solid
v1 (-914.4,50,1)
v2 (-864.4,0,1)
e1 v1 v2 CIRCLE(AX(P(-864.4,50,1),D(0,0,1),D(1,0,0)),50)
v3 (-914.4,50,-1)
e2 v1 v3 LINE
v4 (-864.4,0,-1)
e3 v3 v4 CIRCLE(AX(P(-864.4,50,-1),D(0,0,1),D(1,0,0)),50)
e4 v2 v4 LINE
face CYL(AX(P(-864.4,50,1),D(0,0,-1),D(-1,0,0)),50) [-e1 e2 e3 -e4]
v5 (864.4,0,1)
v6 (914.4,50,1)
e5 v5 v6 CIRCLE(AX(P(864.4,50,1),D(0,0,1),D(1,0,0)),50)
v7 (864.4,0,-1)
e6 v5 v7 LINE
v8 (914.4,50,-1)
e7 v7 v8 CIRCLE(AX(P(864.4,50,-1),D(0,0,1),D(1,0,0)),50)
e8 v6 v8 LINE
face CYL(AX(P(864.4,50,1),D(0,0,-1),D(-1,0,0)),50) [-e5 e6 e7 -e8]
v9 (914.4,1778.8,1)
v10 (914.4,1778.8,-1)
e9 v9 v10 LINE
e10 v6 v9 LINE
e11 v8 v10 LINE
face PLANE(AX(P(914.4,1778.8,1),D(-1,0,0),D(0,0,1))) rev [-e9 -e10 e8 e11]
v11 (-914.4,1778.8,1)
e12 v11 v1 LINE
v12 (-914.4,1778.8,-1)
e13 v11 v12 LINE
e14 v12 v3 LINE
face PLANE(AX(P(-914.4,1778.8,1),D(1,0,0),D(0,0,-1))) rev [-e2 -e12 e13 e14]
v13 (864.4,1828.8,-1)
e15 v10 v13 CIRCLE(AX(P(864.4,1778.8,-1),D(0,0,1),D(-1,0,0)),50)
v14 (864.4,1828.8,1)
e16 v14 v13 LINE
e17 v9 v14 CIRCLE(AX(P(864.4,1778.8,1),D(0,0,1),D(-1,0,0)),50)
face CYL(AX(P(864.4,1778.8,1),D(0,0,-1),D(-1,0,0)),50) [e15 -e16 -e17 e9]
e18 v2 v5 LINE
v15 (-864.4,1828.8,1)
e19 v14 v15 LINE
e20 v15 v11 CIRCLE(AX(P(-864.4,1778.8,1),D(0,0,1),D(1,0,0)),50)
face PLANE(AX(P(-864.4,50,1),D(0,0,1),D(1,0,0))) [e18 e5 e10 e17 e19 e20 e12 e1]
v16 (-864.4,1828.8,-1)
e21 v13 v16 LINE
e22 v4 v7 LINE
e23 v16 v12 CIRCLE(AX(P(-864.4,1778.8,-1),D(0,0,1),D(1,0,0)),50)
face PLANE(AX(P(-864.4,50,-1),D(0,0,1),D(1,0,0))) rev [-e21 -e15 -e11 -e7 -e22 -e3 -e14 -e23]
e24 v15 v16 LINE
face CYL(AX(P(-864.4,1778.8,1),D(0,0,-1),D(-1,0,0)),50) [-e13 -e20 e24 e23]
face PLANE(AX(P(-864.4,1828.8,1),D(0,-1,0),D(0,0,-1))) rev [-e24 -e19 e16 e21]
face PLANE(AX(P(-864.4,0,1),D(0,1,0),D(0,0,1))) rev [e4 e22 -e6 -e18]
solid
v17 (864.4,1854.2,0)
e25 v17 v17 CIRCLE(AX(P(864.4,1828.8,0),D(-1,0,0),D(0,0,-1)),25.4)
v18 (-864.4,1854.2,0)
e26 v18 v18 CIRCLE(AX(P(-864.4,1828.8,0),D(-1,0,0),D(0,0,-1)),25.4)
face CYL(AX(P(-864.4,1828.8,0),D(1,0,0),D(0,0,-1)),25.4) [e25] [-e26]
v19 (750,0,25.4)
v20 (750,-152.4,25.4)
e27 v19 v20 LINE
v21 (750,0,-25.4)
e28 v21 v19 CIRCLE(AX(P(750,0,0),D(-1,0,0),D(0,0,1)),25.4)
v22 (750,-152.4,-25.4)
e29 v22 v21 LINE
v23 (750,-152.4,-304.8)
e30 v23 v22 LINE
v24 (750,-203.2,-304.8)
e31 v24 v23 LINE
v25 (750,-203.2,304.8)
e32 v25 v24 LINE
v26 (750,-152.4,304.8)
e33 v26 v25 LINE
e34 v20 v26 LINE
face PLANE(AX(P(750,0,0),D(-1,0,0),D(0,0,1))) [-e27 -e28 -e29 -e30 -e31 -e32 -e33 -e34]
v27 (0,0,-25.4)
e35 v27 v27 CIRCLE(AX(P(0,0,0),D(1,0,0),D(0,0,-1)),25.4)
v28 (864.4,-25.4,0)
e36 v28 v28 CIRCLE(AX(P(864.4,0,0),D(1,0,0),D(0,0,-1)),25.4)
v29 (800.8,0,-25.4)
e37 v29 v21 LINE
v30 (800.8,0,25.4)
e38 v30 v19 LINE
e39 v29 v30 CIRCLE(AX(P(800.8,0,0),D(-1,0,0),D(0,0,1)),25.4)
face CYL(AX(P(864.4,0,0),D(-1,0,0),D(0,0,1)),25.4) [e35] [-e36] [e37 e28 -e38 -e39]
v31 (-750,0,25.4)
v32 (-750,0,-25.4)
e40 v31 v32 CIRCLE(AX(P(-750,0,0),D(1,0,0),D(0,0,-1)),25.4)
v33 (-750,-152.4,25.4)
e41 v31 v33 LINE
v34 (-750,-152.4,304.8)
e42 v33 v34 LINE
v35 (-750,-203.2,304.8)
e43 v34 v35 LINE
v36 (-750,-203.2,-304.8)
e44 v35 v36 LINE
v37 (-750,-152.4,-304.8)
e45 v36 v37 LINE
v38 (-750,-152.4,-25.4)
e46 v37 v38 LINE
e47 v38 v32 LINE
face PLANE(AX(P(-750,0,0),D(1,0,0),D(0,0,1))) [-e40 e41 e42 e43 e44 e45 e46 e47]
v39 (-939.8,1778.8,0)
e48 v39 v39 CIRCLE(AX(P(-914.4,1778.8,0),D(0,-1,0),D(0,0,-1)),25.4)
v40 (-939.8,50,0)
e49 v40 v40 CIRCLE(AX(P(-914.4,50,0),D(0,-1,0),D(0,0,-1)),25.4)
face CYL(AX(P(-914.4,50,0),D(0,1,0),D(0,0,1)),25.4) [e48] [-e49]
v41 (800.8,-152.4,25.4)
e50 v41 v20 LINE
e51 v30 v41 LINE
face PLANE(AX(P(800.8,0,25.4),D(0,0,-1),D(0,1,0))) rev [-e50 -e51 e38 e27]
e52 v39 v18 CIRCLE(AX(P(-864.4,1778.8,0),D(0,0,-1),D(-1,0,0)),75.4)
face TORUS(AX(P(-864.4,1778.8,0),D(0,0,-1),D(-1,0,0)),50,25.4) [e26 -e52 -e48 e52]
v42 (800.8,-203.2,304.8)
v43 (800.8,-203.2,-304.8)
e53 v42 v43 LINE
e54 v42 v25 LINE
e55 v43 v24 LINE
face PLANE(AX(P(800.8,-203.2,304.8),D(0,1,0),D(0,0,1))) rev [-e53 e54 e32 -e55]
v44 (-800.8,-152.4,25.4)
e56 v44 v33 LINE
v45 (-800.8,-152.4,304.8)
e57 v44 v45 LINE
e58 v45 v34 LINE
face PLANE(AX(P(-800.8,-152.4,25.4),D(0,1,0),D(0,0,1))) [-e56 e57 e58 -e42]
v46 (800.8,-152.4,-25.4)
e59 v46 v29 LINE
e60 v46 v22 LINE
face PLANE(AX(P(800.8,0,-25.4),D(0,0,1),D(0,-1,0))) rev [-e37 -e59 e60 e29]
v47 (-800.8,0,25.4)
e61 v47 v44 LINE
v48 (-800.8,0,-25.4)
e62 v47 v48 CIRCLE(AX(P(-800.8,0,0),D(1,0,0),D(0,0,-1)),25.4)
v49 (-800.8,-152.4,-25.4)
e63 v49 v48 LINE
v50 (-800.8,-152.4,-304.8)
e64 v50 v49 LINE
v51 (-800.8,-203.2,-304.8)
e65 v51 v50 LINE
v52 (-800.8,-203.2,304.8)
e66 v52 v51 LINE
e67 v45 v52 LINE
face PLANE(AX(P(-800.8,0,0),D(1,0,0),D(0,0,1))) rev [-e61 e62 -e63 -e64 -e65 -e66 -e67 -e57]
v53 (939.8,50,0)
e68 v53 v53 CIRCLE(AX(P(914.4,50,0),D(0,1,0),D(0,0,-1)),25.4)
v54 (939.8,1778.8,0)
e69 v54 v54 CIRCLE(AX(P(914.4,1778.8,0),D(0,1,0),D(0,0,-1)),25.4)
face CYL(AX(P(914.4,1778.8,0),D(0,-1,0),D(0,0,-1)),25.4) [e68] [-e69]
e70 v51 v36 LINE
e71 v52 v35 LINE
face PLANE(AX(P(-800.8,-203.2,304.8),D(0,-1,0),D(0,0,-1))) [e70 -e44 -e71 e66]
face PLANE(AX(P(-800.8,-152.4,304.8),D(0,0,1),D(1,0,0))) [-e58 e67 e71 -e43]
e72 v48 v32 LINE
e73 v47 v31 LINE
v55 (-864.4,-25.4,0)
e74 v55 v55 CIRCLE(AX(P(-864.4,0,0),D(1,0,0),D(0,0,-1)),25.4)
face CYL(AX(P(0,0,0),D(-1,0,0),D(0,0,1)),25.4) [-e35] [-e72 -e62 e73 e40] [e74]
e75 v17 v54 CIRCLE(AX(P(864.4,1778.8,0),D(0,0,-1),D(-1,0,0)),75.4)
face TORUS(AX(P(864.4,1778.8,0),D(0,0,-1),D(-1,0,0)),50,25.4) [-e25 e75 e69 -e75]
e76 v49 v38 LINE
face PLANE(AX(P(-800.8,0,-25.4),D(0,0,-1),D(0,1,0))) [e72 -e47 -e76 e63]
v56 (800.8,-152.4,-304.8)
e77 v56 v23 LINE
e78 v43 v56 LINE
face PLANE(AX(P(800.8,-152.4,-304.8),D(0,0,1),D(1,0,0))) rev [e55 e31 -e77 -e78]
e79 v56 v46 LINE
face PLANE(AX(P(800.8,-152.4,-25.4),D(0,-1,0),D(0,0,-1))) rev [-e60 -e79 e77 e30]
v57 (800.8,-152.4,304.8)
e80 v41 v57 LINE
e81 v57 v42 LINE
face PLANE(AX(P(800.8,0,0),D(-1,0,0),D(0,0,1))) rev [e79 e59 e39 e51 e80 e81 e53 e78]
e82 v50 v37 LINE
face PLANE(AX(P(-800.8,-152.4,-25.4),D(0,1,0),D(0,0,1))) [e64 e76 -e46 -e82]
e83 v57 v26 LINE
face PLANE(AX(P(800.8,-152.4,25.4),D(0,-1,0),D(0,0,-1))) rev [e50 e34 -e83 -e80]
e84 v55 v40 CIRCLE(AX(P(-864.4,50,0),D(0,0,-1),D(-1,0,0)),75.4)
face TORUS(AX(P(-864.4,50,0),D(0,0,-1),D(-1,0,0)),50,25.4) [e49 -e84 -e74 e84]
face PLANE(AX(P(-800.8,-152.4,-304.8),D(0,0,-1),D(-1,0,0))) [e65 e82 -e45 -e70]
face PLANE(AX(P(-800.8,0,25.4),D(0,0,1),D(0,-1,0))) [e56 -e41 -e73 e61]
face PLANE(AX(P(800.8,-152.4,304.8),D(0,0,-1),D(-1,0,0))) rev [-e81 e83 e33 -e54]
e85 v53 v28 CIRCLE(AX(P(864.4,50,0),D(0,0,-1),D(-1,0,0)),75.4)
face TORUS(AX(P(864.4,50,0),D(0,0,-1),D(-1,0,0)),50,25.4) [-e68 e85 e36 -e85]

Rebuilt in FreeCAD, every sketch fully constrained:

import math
import FreeCAD as App
import Part
import Sketcher

V = App.Vector
Q = App.Units.Quantity


def add_polygon(sketch, points):
    """Adds a closed chain of lines whose ends are joined by coincident constraints."""
    first, n = sketch.GeometryCount, len(points)
    for a, b in zip(points, points[1:] + points[:1]):
        sketch.addGeometry(Part.LineSegment(App.Vector(*a, 0), App.Vector(*b, 0)), False)
    for i in range(n):
        sketch.addConstraint(Sketcher.Constraint("Coincident", first + i, 2, first + (i + 1) % n, 1))

doc = App.newDocument("Part")
body = doc.addObject("PartDesign::Body", "Body")

sketch1 = doc.addObject("Sketcher::SketchObject", "Sketch")
body.addObject(sketch1)
sketch1.AttachmentSupport = (doc.YZ_Plane, [""])
sketch1.MapMode = "FlatFace"
sketch1.addGeometry(Part.Circle(V(0, 0, 0), V(0, 0, 1), 25), False)
sketch1.addConstraint(Sketcher.Constraint("Coincident", 0, 3, -1, 1))
sketch1.addConstraint(Sketcher.Constraint("Diameter", 0, Q("2 in")))

sketch2 = doc.addObject("Sketcher::SketchObject", "Sketch001")
body.addObject(sketch2)
sketch2.AttachmentSupport = (doc.XY_Plane, [""])
sketch2.MapMode = "FlatFace"
sketch2.addGeometry(Part.LineSegment(V(-864, 1829, 0), V(864, 1829, 0)), False)
sketch2.addGeometry(Part.ArcOfCircle(Part.Circle(V(864, 1779, 0), V(0, 0, 1), 50), math.radians(0), math.radians(90)), False)
sketch2.addGeometry(Part.LineSegment(V(914, 1779, 0), V(914, 50, 0)), False)
sketch2.addGeometry(Part.ArcOfCircle(Part.Circle(V(864, 50, 0), V(0, 0, 1), 50), math.radians(-90), math.radians(0)), False)
sketch2.addGeometry(Part.LineSegment(V(864, 0, 0), V(-864, 0, 0)), False)
sketch2.addGeometry(Part.ArcOfCircle(Part.Circle(V(-864, 50, 0), V(0, 0, 1), 50), math.radians(-180), math.radians(-90)), False)
sketch2.addGeometry(Part.LineSegment(V(-914, 50, 0), V(-914, 1779, 0)), False)
sketch2.addGeometry(Part.ArcOfCircle(Part.Circle(V(-864, 1779, 0), V(0, 0, 1), 50), math.radians(90), math.radians(180)), False)
sketch2.addConstraint(Sketcher.Constraint("Tangent", 0, 2, 1, 2))
sketch2.addConstraint(Sketcher.Constraint("Tangent", 1, 1, 2, 1))
sketch2.addConstraint(Sketcher.Constraint("Tangent", 2, 2, 3, 2))
sketch2.addConstraint(Sketcher.Constraint("Tangent", 3, 1, 4, 1))
sketch2.addConstraint(Sketcher.Constraint("Tangent", 4, 2, 5, 2))
sketch2.addConstraint(Sketcher.Constraint("Tangent", 5, 1, 6, 1))
sketch2.addConstraint(Sketcher.Constraint("Tangent", 6, 2, 7, 2))
sketch2.addConstraint(Sketcher.Constraint("Tangent", 7, 1, 0, 1))
sketch2.addConstraint(Sketcher.Constraint("Horizontal", 0))
sketch2.addConstraint(Sketcher.Constraint("Vertical", 2))
sketch2.addConstraint(Sketcher.Constraint("Horizontal", 4))
sketch2.addConstraint(Sketcher.Constraint("Vertical", 6))
sketch2.addConstraint(Sketcher.Constraint("Equal", 1, 3))
sketch2.addConstraint(Sketcher.Constraint("Equal", 3, 5))
sketch2.addConstraint(Sketcher.Constraint("Equal", 5, 7))
sketch2.addConstraint(Sketcher.Constraint("Symmetric", 3, 1, 4, 2, -1, 1))
sketch2.addConstraint(Sketcher.Constraint("Equal", 4, 2))
sketch2.addConstraint(Sketcher.Constraint("DistanceY", -1, 1, 0, 2, Q("72 in")))
sketch2.addConstraint(Sketcher.Constraint("Radius", 1, Q("50 mm")))
doc.recompute()

additivepipe = doc.addObject("PartDesign::AdditivePipe", "AdditivePipe")
body.addObject(additivepipe)
additivepipe.Profile = sketch1
additivepipe.Spine = (sketch2, ["Edge1", "Edge2", "Edge3", "Edge4", "Edge5", "Edge6", "Edge7", "Edge8"])

sketch3 = doc.addObject("Sketcher::SketchObject", "Sketch002")
body.addObject(sketch3)
sketch3.AttachmentSupport = (doc.YZ_Plane, [""])
sketch3.MapMode = "FlatFace"
sketch3.AttachmentOffset = App.Placement(V(0, 0, 750), App.Rotation())
add_polygon(sketch3, [(0, 25), (-152, 25), (-152, 305), (-203, 305), (-203, -305), (-152, -305), (-152, -25), (0, -25)])
sketch3.addConstraint(Sketcher.Constraint("Horizontal", 0))
sketch3.addConstraint(Sketcher.Constraint("Vertical", 1))
sketch3.addConstraint(Sketcher.Constraint("Horizontal", 2))
sketch3.addConstraint(Sketcher.Constraint("Vertical", 3))
sketch3.addConstraint(Sketcher.Constraint("Horizontal", 4))
sketch3.addConstraint(Sketcher.Constraint("Vertical", 5))
sketch3.addConstraint(Sketcher.Constraint("Horizontal", 6))
sketch3.addConstraint(Sketcher.Constraint("Vertical", 7))
sketch3.addConstraint(Sketcher.Constraint("Symmetric", 6, 2, 7, 2, -1, 1))
sketch3.addConstraint(Sketcher.Constraint("Symmetric", 1, 2, 4, 2, -1))
sketch3.addConstraint(Sketcher.Constraint("Equal", 4, 7))
sketch3.addConstraint(Sketcher.Constraint("DistanceX", 0, 2, 0, 1, Q("6 in")))
sketch3.addConstraint(Sketcher.Constraint("DistanceX", 2, 2, 2, 1, Q("2 in")))
sketch3.addConstraint(Sketcher.Constraint("DistanceY", 1, 1, 1, 2, Q("11 in")))
pad1 = doc.addObject("PartDesign::Pad", "Pad")
body.addObject(pad1)
pad1.Profile = sketch3
pad1.Length = Q("2 in")
doc.recompute()

mirrored = doc.addObject("PartDesign::Mirrored", "Mirrored")
body.addObject(mirrored)
mirrored.Originals = [pad1]
mirrored.MirrorPlane = (doc.YZ_Plane, [""])
body.Tip = mirrored
body2 = doc.addObject("PartDesign::Body", "Body001")

sketch4 = doc.addObject("Sketcher::SketchObject", "Sketch003")
body2.addObject(sketch4)
sketch4.AttachmentSupport = (doc.getObject("XY_Plane001"), [""])
sketch4.MapMode = "FlatFace"
sketch4.addGeometry(Part.LineSegment(V(864, 1829, 0), V(-864, 1829, 0)), False)
sketch4.addGeometry(Part.ArcOfCircle(Part.Circle(V(-864, 1779, 0), V(0, 0, 1), 50), math.radians(90), math.radians(180)), False)
sketch4.addGeometry(Part.LineSegment(V(-914, 1779, 0), V(-914, 50, 0)), False)
sketch4.addGeometry(Part.ArcOfCircle(Part.Circle(V(-864, 50, 0), V(0, 0, 1), 50), math.radians(-180), math.radians(-90)), False)
sketch4.addGeometry(Part.LineSegment(V(-864, 0, 0), V(864, 0, 0)), False)
sketch4.addGeometry(Part.ArcOfCircle(Part.Circle(V(864, 50, 0), V(0, 0, 1), 50), math.radians(-90), math.radians(0)), False)
sketch4.addGeometry(Part.LineSegment(V(914, 50, 0), V(914, 1779, 0)), False)
sketch4.addGeometry(Part.ArcOfCircle(Part.Circle(V(864, 1779, 0), V(0, 0, 1), 50), math.radians(0), math.radians(90)), False)
sketch4.addConstraint(Sketcher.Constraint("Tangent", 0, 2, 1, 1))
sketch4.addConstraint(Sketcher.Constraint("Tangent", 1, 2, 2, 1))
sketch4.addConstraint(Sketcher.Constraint("Tangent", 2, 2, 3, 1))
sketch4.addConstraint(Sketcher.Constraint("Tangent", 3, 2, 4, 1))
sketch4.addConstraint(Sketcher.Constraint("Tangent", 4, 2, 5, 1))
sketch4.addConstraint(Sketcher.Constraint("Tangent", 5, 2, 6, 1))
sketch4.addConstraint(Sketcher.Constraint("Tangent", 6, 2, 7, 1))
sketch4.addConstraint(Sketcher.Constraint("Tangent", 7, 2, 0, 1))
sketch4.addConstraint(Sketcher.Constraint("Horizontal", 0))
sketch4.addConstraint(Sketcher.Constraint("Vertical", 2))
sketch4.addConstraint(Sketcher.Constraint("Horizontal", 4))
sketch4.addConstraint(Sketcher.Constraint("Vertical", 6))
sketch4.addConstraint(Sketcher.Constraint("Equal", 1, 3))
sketch4.addConstraint(Sketcher.Constraint("Equal", 3, 5))
sketch4.addConstraint(Sketcher.Constraint("Equal", 5, 7))
sketch4.addConstraint(Sketcher.Constraint("Symmetric", 3, 2, 4, 2, -1, 1))
sketch4.addConstraint(Sketcher.Constraint("Equal", 4, 2))
sketch4.addConstraint(Sketcher.Constraint("DistanceY", -1, 1, 0, 2, Q("72 in")))
sketch4.addConstraint(Sketcher.Constraint("Radius", 1, Q("50 mm")))
pad2 = doc.addObject("PartDesign::Pad", "Pad001")
body2.addObject(pad2)
pad2.Profile = sketch4
pad2.Length = 2
pad2.Midplane = True

doc.recompute()
